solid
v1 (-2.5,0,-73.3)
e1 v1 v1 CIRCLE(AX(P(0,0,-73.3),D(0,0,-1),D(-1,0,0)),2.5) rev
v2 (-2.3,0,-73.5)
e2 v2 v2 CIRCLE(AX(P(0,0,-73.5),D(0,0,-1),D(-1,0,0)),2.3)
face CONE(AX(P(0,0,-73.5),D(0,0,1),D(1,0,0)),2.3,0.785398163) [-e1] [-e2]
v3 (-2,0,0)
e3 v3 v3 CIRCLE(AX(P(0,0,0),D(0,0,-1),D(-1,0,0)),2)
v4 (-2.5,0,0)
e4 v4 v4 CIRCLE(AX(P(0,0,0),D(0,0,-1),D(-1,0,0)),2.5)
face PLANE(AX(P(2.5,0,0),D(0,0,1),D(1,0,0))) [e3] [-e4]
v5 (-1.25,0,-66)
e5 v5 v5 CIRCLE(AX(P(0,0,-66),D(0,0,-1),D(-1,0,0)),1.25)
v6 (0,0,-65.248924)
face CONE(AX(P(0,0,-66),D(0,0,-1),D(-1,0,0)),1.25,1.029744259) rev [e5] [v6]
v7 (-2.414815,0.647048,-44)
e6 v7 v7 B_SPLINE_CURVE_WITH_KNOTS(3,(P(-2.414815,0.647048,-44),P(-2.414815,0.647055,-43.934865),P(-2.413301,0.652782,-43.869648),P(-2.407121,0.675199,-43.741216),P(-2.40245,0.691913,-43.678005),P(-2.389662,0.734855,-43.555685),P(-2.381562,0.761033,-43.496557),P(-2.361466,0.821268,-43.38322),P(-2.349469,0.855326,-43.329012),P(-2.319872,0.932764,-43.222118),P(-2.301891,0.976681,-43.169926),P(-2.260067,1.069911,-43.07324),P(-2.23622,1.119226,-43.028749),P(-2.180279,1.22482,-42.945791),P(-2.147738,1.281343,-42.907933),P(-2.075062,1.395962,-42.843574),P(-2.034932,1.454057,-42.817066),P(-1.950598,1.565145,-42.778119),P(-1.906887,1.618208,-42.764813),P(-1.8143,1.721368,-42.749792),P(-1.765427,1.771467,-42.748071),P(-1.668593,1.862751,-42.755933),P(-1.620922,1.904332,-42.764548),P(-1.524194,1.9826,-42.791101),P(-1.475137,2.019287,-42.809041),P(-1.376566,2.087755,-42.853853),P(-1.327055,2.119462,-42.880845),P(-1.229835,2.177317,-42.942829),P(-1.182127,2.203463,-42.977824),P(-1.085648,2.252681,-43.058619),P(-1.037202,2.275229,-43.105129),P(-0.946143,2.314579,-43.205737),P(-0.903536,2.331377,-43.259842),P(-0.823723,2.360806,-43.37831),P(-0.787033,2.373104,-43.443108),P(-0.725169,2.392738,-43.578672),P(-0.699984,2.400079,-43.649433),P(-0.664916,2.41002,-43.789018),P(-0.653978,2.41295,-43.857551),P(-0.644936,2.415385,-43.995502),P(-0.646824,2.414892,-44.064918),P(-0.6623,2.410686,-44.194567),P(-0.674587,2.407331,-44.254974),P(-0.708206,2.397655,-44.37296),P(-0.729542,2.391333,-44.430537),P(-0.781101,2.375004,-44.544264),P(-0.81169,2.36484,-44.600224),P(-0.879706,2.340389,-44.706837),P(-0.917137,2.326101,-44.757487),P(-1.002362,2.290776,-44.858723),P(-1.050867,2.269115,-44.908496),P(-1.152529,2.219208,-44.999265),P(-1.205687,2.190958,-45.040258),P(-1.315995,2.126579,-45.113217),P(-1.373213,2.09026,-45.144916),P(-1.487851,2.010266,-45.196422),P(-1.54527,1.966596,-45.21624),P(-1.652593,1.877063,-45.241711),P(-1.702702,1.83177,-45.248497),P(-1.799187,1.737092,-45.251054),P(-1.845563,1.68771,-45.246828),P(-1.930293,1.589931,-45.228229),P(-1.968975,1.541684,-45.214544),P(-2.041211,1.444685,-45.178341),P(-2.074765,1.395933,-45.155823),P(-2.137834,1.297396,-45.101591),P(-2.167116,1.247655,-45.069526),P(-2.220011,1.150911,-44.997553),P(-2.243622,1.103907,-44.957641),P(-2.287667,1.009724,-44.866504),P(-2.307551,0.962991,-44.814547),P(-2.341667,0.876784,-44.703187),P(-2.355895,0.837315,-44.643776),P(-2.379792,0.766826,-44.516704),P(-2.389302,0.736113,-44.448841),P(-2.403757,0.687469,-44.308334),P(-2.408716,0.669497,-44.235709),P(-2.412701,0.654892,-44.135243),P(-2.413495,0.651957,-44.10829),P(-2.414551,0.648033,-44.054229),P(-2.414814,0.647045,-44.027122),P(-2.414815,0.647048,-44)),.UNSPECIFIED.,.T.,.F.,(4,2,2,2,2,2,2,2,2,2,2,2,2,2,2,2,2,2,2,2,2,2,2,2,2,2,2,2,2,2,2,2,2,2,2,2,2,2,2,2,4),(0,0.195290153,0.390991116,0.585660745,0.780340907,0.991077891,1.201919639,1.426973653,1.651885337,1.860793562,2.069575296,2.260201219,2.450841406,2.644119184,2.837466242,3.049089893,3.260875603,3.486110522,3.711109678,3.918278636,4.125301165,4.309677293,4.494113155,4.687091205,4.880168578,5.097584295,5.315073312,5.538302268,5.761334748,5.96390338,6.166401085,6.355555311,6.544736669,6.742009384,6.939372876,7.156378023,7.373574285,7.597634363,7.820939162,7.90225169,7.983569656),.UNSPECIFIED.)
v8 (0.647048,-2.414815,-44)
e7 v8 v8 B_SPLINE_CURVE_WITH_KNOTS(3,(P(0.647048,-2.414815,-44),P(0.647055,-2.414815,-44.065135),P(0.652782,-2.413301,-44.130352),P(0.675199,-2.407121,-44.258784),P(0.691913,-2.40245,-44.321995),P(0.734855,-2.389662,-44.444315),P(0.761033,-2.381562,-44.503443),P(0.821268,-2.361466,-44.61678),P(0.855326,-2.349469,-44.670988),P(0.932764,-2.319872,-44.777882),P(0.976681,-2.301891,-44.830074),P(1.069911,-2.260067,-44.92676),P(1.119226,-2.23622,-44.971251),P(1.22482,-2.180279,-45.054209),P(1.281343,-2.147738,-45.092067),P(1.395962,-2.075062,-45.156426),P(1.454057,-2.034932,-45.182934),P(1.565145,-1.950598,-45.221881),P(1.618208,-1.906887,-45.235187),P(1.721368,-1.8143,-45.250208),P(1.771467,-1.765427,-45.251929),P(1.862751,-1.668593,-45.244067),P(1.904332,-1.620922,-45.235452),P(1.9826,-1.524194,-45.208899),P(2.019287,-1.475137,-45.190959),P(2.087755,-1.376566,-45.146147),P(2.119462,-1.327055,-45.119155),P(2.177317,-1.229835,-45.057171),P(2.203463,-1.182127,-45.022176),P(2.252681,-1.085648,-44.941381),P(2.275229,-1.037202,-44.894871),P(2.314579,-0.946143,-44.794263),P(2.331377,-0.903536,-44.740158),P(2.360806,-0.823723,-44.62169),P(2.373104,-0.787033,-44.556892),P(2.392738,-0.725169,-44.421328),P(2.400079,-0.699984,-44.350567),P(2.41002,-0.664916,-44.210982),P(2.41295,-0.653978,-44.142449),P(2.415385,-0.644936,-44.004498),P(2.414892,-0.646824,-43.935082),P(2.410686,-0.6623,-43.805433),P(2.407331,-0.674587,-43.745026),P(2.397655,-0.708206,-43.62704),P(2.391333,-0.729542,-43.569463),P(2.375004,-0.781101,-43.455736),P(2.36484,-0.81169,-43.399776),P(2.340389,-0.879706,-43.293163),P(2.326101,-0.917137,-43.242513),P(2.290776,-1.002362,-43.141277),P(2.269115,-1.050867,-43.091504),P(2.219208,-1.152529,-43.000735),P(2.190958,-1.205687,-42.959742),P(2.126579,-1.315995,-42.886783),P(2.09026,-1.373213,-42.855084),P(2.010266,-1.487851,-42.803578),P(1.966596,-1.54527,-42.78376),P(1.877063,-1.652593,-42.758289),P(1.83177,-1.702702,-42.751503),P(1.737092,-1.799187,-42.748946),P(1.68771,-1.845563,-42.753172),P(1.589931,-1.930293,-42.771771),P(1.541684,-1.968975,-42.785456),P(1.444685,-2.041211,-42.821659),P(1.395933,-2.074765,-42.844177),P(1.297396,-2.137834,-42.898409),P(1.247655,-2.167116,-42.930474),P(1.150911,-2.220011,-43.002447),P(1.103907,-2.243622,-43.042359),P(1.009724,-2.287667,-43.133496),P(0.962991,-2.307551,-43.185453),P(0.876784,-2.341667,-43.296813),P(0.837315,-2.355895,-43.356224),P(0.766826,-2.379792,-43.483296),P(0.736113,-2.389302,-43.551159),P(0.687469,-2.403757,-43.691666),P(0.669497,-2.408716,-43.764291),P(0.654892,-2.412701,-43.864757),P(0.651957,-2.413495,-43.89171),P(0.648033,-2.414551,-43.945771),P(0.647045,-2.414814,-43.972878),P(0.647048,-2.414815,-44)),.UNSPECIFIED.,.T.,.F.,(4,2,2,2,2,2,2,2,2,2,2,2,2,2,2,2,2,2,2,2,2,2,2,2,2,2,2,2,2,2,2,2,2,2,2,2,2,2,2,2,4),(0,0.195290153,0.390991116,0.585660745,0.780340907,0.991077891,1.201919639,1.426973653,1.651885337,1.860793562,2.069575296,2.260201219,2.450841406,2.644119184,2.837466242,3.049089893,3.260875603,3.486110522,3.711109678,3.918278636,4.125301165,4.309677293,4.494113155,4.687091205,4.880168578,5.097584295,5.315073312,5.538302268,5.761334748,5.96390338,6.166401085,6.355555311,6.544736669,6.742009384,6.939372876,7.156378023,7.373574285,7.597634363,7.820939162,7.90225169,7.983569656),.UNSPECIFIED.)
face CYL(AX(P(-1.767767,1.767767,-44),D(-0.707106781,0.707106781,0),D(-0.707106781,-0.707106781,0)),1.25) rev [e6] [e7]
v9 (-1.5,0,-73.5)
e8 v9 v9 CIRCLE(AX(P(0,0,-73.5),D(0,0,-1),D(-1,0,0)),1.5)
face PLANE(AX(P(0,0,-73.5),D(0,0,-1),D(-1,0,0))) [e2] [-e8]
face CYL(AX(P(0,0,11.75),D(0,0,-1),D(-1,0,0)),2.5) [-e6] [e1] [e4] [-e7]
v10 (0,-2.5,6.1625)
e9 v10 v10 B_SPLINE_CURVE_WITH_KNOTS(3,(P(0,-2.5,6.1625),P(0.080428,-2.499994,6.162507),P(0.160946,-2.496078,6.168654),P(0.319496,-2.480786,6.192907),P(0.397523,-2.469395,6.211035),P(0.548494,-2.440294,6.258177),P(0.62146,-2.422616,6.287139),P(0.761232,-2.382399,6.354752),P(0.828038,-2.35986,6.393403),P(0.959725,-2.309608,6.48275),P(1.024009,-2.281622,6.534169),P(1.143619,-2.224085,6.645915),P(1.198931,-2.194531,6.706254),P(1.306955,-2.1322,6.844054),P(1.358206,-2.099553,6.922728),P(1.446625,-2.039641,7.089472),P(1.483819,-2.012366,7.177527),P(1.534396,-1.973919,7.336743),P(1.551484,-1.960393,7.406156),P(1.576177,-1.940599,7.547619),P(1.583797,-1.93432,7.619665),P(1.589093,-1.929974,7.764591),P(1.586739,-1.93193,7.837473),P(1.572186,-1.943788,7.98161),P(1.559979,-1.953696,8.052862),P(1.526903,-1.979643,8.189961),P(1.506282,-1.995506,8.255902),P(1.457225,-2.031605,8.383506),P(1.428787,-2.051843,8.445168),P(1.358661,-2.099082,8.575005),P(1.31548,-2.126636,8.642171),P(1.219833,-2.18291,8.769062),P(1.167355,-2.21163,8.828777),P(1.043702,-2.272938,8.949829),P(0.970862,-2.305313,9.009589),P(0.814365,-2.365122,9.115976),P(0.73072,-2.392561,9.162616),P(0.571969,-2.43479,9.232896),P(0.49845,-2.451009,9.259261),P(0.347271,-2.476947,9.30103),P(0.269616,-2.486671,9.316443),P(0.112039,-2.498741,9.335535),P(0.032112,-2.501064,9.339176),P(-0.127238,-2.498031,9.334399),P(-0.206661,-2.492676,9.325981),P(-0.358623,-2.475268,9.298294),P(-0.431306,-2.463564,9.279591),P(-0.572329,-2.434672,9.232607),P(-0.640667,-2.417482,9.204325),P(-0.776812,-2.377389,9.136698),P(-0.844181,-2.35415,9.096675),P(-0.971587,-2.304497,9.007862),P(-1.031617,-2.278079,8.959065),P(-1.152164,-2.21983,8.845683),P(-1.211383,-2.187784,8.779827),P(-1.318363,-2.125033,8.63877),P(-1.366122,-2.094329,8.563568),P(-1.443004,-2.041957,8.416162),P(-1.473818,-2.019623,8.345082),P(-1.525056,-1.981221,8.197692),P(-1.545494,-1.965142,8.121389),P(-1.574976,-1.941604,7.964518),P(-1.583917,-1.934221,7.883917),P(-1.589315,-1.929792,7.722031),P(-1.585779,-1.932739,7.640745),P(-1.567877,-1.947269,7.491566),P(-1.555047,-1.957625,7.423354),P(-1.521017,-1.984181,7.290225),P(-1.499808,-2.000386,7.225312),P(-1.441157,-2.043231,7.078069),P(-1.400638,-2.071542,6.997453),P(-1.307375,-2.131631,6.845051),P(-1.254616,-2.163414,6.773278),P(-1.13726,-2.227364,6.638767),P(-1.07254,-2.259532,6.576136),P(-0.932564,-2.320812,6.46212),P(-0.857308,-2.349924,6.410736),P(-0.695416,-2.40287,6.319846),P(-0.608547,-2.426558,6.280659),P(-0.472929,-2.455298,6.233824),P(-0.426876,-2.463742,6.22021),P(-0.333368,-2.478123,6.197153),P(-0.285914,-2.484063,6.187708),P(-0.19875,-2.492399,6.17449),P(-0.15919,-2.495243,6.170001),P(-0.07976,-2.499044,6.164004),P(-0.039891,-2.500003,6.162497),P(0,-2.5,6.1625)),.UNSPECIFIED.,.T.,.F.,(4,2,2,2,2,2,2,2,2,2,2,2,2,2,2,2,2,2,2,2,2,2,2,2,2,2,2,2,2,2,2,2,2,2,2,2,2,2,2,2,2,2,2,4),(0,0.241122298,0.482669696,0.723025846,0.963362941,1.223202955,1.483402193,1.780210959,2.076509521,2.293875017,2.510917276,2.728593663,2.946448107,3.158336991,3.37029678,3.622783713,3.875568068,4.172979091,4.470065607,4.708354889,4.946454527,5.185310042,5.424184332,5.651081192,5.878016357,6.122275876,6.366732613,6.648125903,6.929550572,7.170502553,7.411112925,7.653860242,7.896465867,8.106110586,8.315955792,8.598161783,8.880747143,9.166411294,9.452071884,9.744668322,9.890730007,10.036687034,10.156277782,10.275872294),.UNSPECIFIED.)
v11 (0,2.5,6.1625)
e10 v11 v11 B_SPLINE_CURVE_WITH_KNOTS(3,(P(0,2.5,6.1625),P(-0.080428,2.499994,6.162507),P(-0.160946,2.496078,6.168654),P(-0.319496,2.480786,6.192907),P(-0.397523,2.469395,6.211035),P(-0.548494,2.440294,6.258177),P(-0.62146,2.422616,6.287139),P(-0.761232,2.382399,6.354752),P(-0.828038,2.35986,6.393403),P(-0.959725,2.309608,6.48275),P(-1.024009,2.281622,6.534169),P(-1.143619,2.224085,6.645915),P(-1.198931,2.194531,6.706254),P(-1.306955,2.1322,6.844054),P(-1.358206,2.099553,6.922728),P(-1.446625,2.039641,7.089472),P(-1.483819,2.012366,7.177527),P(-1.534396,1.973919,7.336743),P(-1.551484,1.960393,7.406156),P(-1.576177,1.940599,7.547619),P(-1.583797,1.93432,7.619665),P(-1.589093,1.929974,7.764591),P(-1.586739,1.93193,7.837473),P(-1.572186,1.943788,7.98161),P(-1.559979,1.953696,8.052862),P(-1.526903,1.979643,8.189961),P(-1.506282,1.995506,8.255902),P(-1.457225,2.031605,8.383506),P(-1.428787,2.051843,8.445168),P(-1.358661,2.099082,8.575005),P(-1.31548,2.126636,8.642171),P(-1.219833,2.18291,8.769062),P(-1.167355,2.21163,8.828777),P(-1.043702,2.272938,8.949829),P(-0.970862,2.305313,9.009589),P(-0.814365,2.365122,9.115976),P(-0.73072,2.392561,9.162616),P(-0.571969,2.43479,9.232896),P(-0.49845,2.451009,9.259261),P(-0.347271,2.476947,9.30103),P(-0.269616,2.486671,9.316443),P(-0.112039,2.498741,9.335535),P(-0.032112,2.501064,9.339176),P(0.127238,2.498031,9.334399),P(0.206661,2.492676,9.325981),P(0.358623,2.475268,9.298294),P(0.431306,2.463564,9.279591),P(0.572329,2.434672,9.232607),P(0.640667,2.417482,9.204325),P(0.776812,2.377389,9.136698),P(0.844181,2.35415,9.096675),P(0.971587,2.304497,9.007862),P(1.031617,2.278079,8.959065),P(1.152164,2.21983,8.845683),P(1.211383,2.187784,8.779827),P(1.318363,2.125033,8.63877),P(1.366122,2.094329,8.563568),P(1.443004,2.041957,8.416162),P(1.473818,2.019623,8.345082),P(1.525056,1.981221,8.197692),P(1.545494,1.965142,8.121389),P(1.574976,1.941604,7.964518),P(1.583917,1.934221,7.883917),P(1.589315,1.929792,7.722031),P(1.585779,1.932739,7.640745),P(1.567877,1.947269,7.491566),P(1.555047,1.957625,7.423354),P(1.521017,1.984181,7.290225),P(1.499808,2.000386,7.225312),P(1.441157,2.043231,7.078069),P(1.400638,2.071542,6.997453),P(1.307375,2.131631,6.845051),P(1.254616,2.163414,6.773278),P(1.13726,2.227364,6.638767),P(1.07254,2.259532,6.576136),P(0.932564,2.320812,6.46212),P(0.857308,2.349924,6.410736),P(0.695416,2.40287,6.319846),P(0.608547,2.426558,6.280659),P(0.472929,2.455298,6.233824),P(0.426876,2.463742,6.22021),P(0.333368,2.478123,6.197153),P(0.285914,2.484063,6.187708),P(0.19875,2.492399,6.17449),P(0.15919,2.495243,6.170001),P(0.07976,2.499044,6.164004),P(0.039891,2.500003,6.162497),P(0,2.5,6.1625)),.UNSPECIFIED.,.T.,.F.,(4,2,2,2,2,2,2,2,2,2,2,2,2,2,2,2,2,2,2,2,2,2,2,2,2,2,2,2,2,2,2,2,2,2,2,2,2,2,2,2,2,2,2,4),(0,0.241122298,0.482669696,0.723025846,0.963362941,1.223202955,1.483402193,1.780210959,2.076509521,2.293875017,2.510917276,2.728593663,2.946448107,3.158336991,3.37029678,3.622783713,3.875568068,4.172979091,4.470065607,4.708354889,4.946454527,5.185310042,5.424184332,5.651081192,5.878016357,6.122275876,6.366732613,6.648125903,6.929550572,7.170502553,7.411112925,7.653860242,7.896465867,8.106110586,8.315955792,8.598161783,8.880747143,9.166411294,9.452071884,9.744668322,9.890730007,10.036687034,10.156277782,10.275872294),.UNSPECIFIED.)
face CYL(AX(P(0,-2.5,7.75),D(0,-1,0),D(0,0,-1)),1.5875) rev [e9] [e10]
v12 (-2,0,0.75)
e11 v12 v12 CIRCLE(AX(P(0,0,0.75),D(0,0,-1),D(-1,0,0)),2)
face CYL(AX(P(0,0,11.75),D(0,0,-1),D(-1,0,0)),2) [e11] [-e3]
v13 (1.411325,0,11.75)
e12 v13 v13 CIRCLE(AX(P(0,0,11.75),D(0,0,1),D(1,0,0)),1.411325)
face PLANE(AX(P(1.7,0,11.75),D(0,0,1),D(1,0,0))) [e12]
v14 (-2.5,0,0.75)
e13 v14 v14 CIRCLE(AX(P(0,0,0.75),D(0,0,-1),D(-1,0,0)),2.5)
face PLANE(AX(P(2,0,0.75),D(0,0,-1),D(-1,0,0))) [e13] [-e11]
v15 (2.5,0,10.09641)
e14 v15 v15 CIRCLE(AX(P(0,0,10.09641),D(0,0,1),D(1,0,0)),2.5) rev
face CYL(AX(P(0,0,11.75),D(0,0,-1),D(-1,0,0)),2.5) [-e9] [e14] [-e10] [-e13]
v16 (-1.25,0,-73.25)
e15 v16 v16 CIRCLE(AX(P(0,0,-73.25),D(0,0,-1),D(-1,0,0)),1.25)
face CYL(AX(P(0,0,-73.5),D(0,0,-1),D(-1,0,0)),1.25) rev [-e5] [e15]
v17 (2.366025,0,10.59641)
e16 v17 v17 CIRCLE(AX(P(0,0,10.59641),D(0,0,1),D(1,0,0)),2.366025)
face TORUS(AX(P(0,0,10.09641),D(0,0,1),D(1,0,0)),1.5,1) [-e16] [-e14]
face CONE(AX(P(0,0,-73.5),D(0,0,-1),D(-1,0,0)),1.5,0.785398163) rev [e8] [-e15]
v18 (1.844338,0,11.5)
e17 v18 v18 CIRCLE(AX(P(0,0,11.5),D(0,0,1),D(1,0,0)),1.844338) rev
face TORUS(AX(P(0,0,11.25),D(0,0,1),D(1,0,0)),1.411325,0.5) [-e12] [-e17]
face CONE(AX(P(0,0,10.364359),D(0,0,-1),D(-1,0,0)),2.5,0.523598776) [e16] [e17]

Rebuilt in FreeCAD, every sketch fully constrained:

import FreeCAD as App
import Part
import Sketcher

V = App.Vector
Q = App.Units.Quantity


def edges_at(feature, points):
    """Names of the edges that pass closest to the given points."""
    edges = feature.Shape.Edges
    near = lambda p: min(range(len(edges)), key=lambda i: edges[i].distToShape(Part.Vertex(*p))[0])
    return sorted({f"Edge{near(p) + 1}" for p in points})


def add_polygon(sketch, points):
    """Adds a closed chain of lines whose ends are joined by coincident constraints."""
    first, n = sketch.GeometryCount, len(points)
    for a, b in zip(points, points[1:] + points[:1]):
        sketch.addGeometry(Part.LineSegment(App.Vector(*a, 0), App.Vector(*b, 0)), False)
    for i in range(n):
        sketch.addConstraint(Sketcher.Constraint("Coincident", first + i, 2, first + (i + 1) % n, 1))

doc = App.newDocument("Part")
params = doc.addObject("Spreadsheet::Sheet", "Params")
for row, (alias, value) in enumerate([
    ("sketch1_width", "1.7 mm"),
    ("sketch1_width2", "2.5 mm"),
    ("sketch1_width3", "0.5 mm"),
    ("sketch1_height", "73.5 mm"),
    ("sketch1_height2", "85.25 mm"),
    ("revolution_angle", "360 deg"),
    ("hole_diameter", "3.175 mm"),
    ("sketch3_diameter", "2.5 mm"),
    ("hole2_diameter", "2.5 mm"),
    ("sketch4_diameter", "2.5 mm"),
    ("hole3_diameter", "2.5 mm"),
    ("hole3_depth", "7.5 mm"),
    ("hole3_csink_diameter", "3 mm"),
    ("chamfer_size", "0.2 mm"),
    ("fillet_radius", "1 mm"),
    ("fillet2_radius", "0.5 mm"),
], start=1):
    params.set(f"A{row}", alias)
    params.set(f"B{row}", "=" + value)
    params.setAlias(f"B{row}", alias)

body = doc.addObject("PartDesign::Body", "Body")

# Sketch on XZ plane
sketch1 = body.newObject("Sketcher::SketchObject", "Sketch")
sketch1.AttachmentSupport = (doc.getObject("XZ_Plane"), [""])
sketch1.MapMode = "FlatFace"
add_polygon(sketch1, [(1.7, 11.8), (0, 11.8), (0, -73.5), (2.5, -73.5), (2.5, 0), (2, 0), (2, 0.8), (2.5, 0.8), (2.5, 10.4)])  # lines 0-8
sketch1.addConstraint([
    Sketcher.Constraint("Horizontal", 0),
    Sketcher.Constraint("Vertical", 1),
    Sketcher.Constraint("Horizontal", 2),
    Sketcher.Constraint("Vertical", 3),
    Sketcher.Constraint("Horizontal", 4),
    Sketcher.Constraint("Vertical", 5),
    Sketcher.Constraint("Horizontal", 6),
    Sketcher.Constraint("Vertical", 7),
    Sketcher.Constraint("PointOnObject", 0, 2, -2),
    Sketcher.Constraint("PointOnObject", 3, 2, -1),
    Sketcher.Constraint("Vertical", 3, 2, 6, 2),
    Sketcher.Constraint("Angle", 8, Q("120 deg")),
    Sketcher.Constraint("DistanceX", 0, 2, 0, 1, Q("1.7 mm")),
    Sketcher.Constraint("DistanceX", 2, 1, 2, 2, Q("2.5 mm")),
    Sketcher.Constraint("DistanceX", 4, 2, 4, 1, Q("0.5 mm")),
    Sketcher.Constraint("DistanceY", 3, 1, 3, 2, Q("73.5 mm")),
    Sketcher.Constraint("DistanceY", 5, 2, 0, 2, Q("11 mm")),
    Sketcher.Constraint("DistanceY", 1, 2, 1, 1, Q("85.25 mm")),
])
sketch1.setExpression("Constraints[21]", "Params.sketch1_width")
sketch1.setExpression("Constraints[22]", "Params.sketch1_width2")
sketch1.setExpression("Constraints[23]", "Params.sketch1_width3")
sketch1.setExpression("Constraints[24]", "Params.sketch1_height")
sketch1.setExpression("Constraints[26]", "Params.sketch1_height2")
revolution = body.newObject("PartDesign::Revolution", "Revolution")
revolution.Profile = sketch1
revolution.ReferenceAxis = (sketch1, ["V_Axis"])
revolution.setExpression("Angle", "Params.revolution_angle")

# Sketch on XZ plane
sketch2 = body.newObject("Sketcher::SketchObject", "Sketch001")
sketch2.AttachmentSupport = (doc.getObject("XZ_Plane"), [""])
sketch2.MapMode = "FlatFace"
sketch2.AttachmentOffset = App.Placement(V(0, 0, 2.5), App.Rotation())
sketch2.addGeometry(Part.Circle(V(0, 7.8, 0), V(0, 0, 1), 1.6), False)
sketch2.addConstraint([
    Sketcher.Constraint("PointOnObject", 0, 3, -2),
    Sketcher.Constraint("Diameter", 0, Q("3.175 mm")),
    Sketcher.Constraint("DistanceY", -1, 1, 0, 3, Q("7.75 mm")),
])
doc.recompute()
hole = body.newObject("PartDesign::Hole", "Hole")
hole.Profile = sketch2
hole.ThreadType = "None"
hole.setExpression("Diameter", "Params.hole_diameter")
hole.DepthType = "ThroughAll"

# Sketch on an angled plane
sketch3 = body.newObject("Sketcher::SketchObject", "Sketch002")
sketch3.Placement = App.Placement(V(-1.767767, 1.767767, 0), App.Rotation(V(0.707106781, 0.707106781, 0), V(0, 0, -0.999999999), V(-0.707106781, 0.707106781, 0), "ZXY"))
sketch3.addGeometry(Part.Circle(V(0, 44, 0), V(0, 0, 1), 1.2), False)
sketch3.addConstraint([
    Sketcher.Constraint("PointOnObject", 0, 3, -2),
    Sketcher.Constraint("Diameter", 0, Q("2.5 mm")),
    Sketcher.Constraint("DistanceY", -1, 1, 0, 3, Q("44 mm")),
])
sketch3.setExpression("Constraints[1]", "Params.sketch3_diameter")
doc.recompute()
hole2 = body.newObject("PartDesign::Hole", "Hole001")
hole2.Profile = sketch3
hole2.ThreadType = "None"
hole2.setExpression("Diameter", "Params.hole2_diameter")
hole2.DepthType = "ThroughAll"

# Sketch on XY plane
sketch4 = body.newObject("Sketcher::SketchObject", "Sketch003")
sketch4.AttachmentSupport = (doc.getObject("XY_Plane"), [""])
sketch4.MapMode = "FlatFace"
sketch4.AttachmentOffset = App.Placement(V(0, 0, -73.5), App.Rotation())
sketch4.addGeometry(Part.Circle(V(0, 0, 0), V(0, 0, 1), 1.2), False)
sketch4.addConstraint([
    Sketcher.Constraint("Coincident", 0, 3, -1, 1),
    Sketcher.Constraint("Diameter", 0, Q("2.5 mm")),
])
sketch4.setExpression("Constraints[1]", "Params.sketch4_diameter")
doc.recompute()
hole3 = body.newObject("PartDesign::Hole", "Hole002")
hole3.Profile = sketch4
hole3.ThreadType = "None"
hole3.setExpression("Diameter", "Params.hole3_diameter")
hole3.DepthType = "Dimension"
hole3.setExpression("Depth", "Params.hole3_depth")
hole3.DrillPoint = "Angled"
hole3.DrillPointAngle = 118
hole3.HoleCutType = "Countersink"
hole3.setExpression("HoleCutDiameter", "Params.hole3_csink_diameter")
hole3.HoleCutCountersinkAngle = 90
hole3.Reversed = True
doc.recompute()

chamfer = body.newObject("PartDesign::Chamfer", "Chamfer")
chamfer.Base = (hole3, edges_at(hole3, [(-2.5, 0, -73.5)]))
chamfer.setExpression("Size", "Params.chamfer_size")
doc.recompute()

fillet = body.newObject("PartDesign::Fillet", "Fillet")
fillet.Base = (chamfer, edges_at(chamfer, [(-2.5, 0, 10.364)]))
fillet.setExpression("Radius", "Params.fillet_radius")
doc.recompute()

fillet2 = body.newObject("PartDesign::Fillet", "Fillet001")
fillet2.Base = (fillet, edges_at(fillet, [(-1.7, 0, 11.75)]))
fillet2.setExpression("Radius", "Params.fillet2_radius")

doc.recompute()
